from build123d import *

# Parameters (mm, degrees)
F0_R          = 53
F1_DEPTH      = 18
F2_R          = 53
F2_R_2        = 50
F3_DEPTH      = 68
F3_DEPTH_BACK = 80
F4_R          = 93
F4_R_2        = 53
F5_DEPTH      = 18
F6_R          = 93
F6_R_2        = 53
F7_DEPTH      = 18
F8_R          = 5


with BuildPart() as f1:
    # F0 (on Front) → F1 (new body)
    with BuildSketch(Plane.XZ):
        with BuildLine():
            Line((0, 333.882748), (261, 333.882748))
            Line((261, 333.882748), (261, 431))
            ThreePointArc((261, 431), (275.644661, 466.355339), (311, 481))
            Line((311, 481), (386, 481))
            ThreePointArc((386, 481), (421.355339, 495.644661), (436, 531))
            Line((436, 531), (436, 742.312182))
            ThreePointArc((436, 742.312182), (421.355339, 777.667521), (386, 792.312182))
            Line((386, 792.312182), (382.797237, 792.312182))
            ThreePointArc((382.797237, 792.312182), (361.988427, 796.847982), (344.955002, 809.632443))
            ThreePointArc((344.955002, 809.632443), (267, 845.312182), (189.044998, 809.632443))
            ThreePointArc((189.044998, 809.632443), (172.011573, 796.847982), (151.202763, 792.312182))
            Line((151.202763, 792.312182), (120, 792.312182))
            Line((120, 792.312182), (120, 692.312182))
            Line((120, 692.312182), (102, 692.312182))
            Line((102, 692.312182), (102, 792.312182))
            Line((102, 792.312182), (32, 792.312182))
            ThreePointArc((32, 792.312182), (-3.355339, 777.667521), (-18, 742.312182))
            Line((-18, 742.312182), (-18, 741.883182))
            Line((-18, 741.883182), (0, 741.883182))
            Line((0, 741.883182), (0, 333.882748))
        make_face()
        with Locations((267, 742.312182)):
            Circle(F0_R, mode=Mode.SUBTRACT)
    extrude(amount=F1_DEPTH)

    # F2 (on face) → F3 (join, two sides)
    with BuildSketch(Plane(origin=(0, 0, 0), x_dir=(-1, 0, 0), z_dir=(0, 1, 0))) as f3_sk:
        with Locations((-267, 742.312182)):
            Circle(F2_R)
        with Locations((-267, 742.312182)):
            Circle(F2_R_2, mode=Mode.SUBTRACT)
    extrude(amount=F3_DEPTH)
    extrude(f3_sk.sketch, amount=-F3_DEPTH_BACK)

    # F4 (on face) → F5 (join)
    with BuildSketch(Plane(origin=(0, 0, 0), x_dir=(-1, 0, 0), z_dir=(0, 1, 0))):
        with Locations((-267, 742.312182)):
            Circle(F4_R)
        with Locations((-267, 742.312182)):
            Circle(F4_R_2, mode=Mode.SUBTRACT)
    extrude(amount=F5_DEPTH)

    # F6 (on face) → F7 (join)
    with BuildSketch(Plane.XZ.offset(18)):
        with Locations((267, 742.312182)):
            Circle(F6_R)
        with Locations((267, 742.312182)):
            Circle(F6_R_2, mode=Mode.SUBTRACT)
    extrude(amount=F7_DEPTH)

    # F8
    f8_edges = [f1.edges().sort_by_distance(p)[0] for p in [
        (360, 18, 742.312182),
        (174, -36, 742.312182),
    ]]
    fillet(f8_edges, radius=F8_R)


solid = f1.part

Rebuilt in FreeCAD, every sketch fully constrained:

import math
import FreeCAD as App
import Part
import Sketcher


def edges_at(feature, points):
    """Names of the edges that pass closest to the given points."""
    edges = feature.Shape.Edges
    near = lambda p: min(range(len(edges)), key=lambda i: edges[i].distToShape(Part.Vertex(*p))[0])
    return sorted({f"Edge{near(p) + 1}" for p in points})

doc = App.newDocument("Part")
body = doc.addObject("PartDesign::Body", "Body")

sketch1 = body.newObject("Sketcher::SketchObject", "Sketch")
sketch1.AttachmentSupport = (doc.getObject("XZ_Plane"), [""])
sketch1.MapMode = "FlatFace"
sketch1.addGeometry([
    Part.LineSegment(App.Vector(0, 333.88, 0), App.Vector(261, 333.88, 0)),
    Part.LineSegment(App.Vector(261, 333.88, 0), App.Vector(261, 431, 0)),
    Part.ArcOfCircle(Part.Circle(App.Vector(311, 431, 0), App.Vector(0, 0, 1), 50), math.radians(90), math.radians(180)),
    Part.LineSegment(App.Vector(311, 481, 0), App.Vector(386, 481, 0)),
    Part.ArcOfCircle(Part.Circle(App.Vector(386, 531, 0), App.Vector(0, 0, 1), 50), math.radians(-90), math.radians(0)),
    Part.LineSegment(App.Vector(436, 531, 0), App.Vector(436, 742.31, 0)),
    Part.ArcOfCircle(Part.Circle(App.Vector(386, 742.31, 0), App.Vector(0, 0, 1), 50), math.radians(0), math.radians(90)),
    Part.LineSegment(App.Vector(386, 792.31, 0), App.Vector(382.8, 792.31, 0)),
    Part.ArcOfCircle(Part.Circle(App.Vector(382.8, 842.31, 0), App.Vector(0, 0, 1), 50), math.radians(-139), math.radians(-90)),
    Part.ArcOfCircle(Part.Circle(App.Vector(267, 742.31, 0), App.Vector(0, 0, 1), 103), math.radians(41), math.radians(139)),
    Part.ArcOfCircle(Part.Circle(App.Vector(151.2, 842.31, 0), App.Vector(0, 0, 1), 50), math.radians(-90), math.radians(-41)),
    Part.LineSegment(App.Vector(151.2, 792.31, 0), App.Vector(120, 792.31, 0)),
    Part.LineSegment(App.Vector(120, 792.31, 0), App.Vector(120, 692.31, 0)),
    Part.LineSegment(App.Vector(120, 692.31, 0), App.Vector(102, 692.31, 0)),
    Part.LineSegment(App.Vector(102, 692.31, 0), App.Vector(102, 792.31, 0)),
    Part.LineSegment(App.Vector(102, 792.31, 0), App.Vector(32, 792.31, 0)),
    Part.ArcOfCircle(Part.Circle(App.Vector(32, 742.31, 0), App.Vector(0, 0, 1), 50), math.radians(90), math.radians(180)),
    Part.LineSegment(App.Vector(-18, 742.31, 0), App.Vector(-18, 741.88, 0)),
    Part.LineSegment(App.Vector(-18, 741.88, 0), App.Vector(0, 741.88, 0)),
    Part.LineSegment(App.Vector(0, 741.88, 0), App.Vector(0, 333.88, 0)),
    Part.Circle(App.Vector(267, 742.31, 0), App.Vector(0, 0, 1), 53),
], False)
sketch1.addConstraint([
    Sketcher.Constraint("Coincident", 0, 2, 1, 1),
    Sketcher.Constraint("Tangent", 1, 2, 2, 2),
    Sketcher.Constraint("Tangent", 2, 1, 3, 1),
    Sketcher.Constraint("Tangent", 3, 2, 4, 1),
    Sketcher.Constraint("Tangent", 4, 2, 5, 1),
    Sketcher.Constraint("Tangent", 5, 2, 6, 1),
    Sketcher.Constraint("Tangent", 6, 2, 7, 1),
    Sketcher.Constraint("Tangent", 7, 2, 8, 2),
    Sketcher.Constraint("Tangent", 8, 1, 9, 1),
    Sketcher.Constraint("Tangent", 9, 2, 10, 2),
    Sketcher.Constraint("Tangent", 10, 1, 11, 1),
    Sketcher.Constraint("Coincident", 11, 2, 12, 1),
    Sketcher.Constraint("Coincident", 12, 2, 13, 1),
    Sketcher.Constraint("Coincident", 13, 2, 14, 1),
    Sketcher.Constraint("Coincident", 14, 2, 15, 1),
    Sketcher.Constraint("Tangent", 15, 2, 16, 1),
    Sketcher.Constraint("Tangent", 16, 2, 17, 1),
    Sketcher.Constraint("Coincident", 17, 2, 18, 1),
    Sketcher.Constraint("Coincident", 18, 2, 19, 1),
    Sketcher.Constraint("Coincident", 19, 2, 0, 1),
    Sketcher.Constraint("Horizontal", 0),
    Sketcher.Constraint("Vertical", 1),
    Sketcher.Constraint("Horizontal", 3),
    Sketcher.Constraint("Vertical", 5),
    Sketcher.Constraint("Horizontal", 7),
    Sketcher.Constraint("Horizontal", 11),
    Sketcher.Constraint("Vertical", 12),
    Sketcher.Constraint("Horizontal", 13),
    Sketcher.Constraint("Vertical", 14),
    Sketcher.Constraint("Horizontal", 15),
    Sketcher.Constraint("Vertical", 17),
    Sketcher.Constraint("Horizontal", 18),
    Sketcher.Constraint("Vertical", 19),
    Sketcher.Constraint("Coincident", 20, 3, 9, 3),
    Sketcher.Constraint("Equal", 2, 4),
    Sketcher.Constraint("Equal", 4, 6),
    Sketcher.Constraint("Equal", 6, 8),
    Sketcher.Constraint("Equal", 8, 10),
    Sketcher.Constraint("Equal", 10, 16),
    Sketcher.Constraint("PointOnObject", 18, 2, -2),
    Sketcher.Constraint("Horizontal", 6, 3, 9, 3),
    Sketcher.Constraint("Horizontal", 8, 3, 10, 3),
    Sketcher.Constraint("Horizontal", 9, 3, 16, 3),
    Sketcher.Constraint("Equal", 13, 18),
    Sketcher.Constraint("Diameter", 20, 106.0),
    Sketcher.Constraint("Radius", 2, 50.0),
    Sketcher.Constraint("Radius", 9, 102.999998),
    Sketcher.Constraint("DistanceX", 0, 1, 0, 2, 261.0),
    Sketcher.Constraint("DistanceX", 3, 1, 3, 2, 75.0),
    Sketcher.Constraint("DistanceX", 13, 2, 13, 1, 18.0),
    Sketcher.Constraint("DistanceX", 15, 2, 15, 1, 70.0),
    Sketcher.Constraint("DistanceY", 12, 2, 12, 1, 100.0),
    Sketcher.Constraint("DistanceY", -1, 1, 2, 3, 431.0),
    Sketcher.Constraint("DistanceX", -1, 1, 9, 3, 267.0),
    Sketcher.Constraint("DistanceY", 17, 2, 17, 1, 0.429),
    Sketcher.Constraint("DistanceY", 5, 1, 5, 2, 211.312182),
    Sketcher.Constraint("DistanceY", 1, 1, 1, 2, 97.117252),
])
pad1 = body.newObject("PartDesign::Pad", "Pad")
pad1.Profile = sketch1
pad1.Length = 18

sketch2 = body.newObject("Sketcher::SketchObject", "Sketch001")
sketch2.AttachmentSupport = (doc.getObject("XZ_Plane"), [""])
sketch2.MapMode = "FlatFace"
sketch2.addGeometry([
    Part.Circle(App.Vector(267, 742, 0), App.Vector(0, 0, 1), 53),
    Part.Circle(App.Vector(267, 742, 0), App.Vector(0, 0, 1), 50),
], False)
sketch2.addConstraint([
    Sketcher.Constraint("Coincident", 1, 3, 0, 3),
    Sketcher.Constraint("Diameter", 0, 106.0),
    Sketcher.Constraint("Diameter", 1, 100.0),
    Sketcher.Constraint("DistanceX", -1, 1, 0, 3, 267.0),
    Sketcher.Constraint("DistanceY", -1, 1, 0, 3, 742.312182),
])
pad2 = body.newObject("PartDesign::Pad", "Pad001")
pad2.Profile = sketch2
pad2.Type = "TwoLengths"
pad2.Length = 68
pad2.Length2 = 80
pad2.Reversed = True

sketch3 = body.newObject("Sketcher::SketchObject", "Sketch002")
sketch3.AttachmentSupport = (doc.getObject("XZ_Plane"), [""])
sketch3.MapMode = "FlatFace"
sketch3.addGeometry([
    Part.Circle(App.Vector(267, 742, 0), App.Vector(0, 0, 1), 93),
    Part.Circle(App.Vector(267, 742, 0), App.Vector(0, 0, 1), 53),
], False)
sketch3.addConstraint([
    Sketcher.Constraint("Coincident", 1, 3, 0, 3),
    Sketcher.Constraint("Diameter", 0, 186.0),
    Sketcher.Constraint("Diameter", 1, 106.0),
    Sketcher.Constraint("DistanceX", -1, 1, 0, 3, 267.0),
    Sketcher.Constraint("DistanceY", -1, 1, 0, 3, 742.312182),
])
pad3 = body.newObject("PartDesign::Pad", "Pad002")
pad3.Profile = sketch3
pad3.Length = 18
pad3.Reversed = True

sketch4 = body.newObject("Sketcher::SketchObject", "Sketch003")
sketch4.AttachmentSupport = (doc.getObject("XZ_Plane"), [""])
sketch4.MapMode = "FlatFace"
sketch4.AttachmentOffset = App.Placement(App.Vector(0, 0, 18), App.Rotation())
sketch4.addGeometry([
    Part.Circle(App.Vector(267, 742, 0), App.Vector(0, 0, 1), 93),
    Part.Circle(App.Vector(267, 742, 0), App.Vector(0, 0, 1), 53),
], False)
sketch4.addConstraint([
    Sketcher.Constraint("Coincident", 1, 3, 0, 3),
    Sketcher.Constraint("Diameter", 0, 186.0),
    Sketcher.Constraint("Diameter", 1, 106.0),
    Sketcher.Constraint("DistanceX", -1, 1, 0, 3, 267.0),
    Sketcher.Constraint("DistanceY", -1, 1, 0, 3, 742.312182),
])
pad4 = body.newObject("PartDesign::Pad", "Pad003")
pad4.Profile = sketch4
pad4.Length = 18
doc.recompute()

fillet = body.newObject("PartDesign::Fillet", "Fillet")
fillet.Base = (pad4, edges_at(pad4, [(360, 18, 742.312), (174, -36, 742.312)]))
fillet.Radius = 5

doc.recompute()
